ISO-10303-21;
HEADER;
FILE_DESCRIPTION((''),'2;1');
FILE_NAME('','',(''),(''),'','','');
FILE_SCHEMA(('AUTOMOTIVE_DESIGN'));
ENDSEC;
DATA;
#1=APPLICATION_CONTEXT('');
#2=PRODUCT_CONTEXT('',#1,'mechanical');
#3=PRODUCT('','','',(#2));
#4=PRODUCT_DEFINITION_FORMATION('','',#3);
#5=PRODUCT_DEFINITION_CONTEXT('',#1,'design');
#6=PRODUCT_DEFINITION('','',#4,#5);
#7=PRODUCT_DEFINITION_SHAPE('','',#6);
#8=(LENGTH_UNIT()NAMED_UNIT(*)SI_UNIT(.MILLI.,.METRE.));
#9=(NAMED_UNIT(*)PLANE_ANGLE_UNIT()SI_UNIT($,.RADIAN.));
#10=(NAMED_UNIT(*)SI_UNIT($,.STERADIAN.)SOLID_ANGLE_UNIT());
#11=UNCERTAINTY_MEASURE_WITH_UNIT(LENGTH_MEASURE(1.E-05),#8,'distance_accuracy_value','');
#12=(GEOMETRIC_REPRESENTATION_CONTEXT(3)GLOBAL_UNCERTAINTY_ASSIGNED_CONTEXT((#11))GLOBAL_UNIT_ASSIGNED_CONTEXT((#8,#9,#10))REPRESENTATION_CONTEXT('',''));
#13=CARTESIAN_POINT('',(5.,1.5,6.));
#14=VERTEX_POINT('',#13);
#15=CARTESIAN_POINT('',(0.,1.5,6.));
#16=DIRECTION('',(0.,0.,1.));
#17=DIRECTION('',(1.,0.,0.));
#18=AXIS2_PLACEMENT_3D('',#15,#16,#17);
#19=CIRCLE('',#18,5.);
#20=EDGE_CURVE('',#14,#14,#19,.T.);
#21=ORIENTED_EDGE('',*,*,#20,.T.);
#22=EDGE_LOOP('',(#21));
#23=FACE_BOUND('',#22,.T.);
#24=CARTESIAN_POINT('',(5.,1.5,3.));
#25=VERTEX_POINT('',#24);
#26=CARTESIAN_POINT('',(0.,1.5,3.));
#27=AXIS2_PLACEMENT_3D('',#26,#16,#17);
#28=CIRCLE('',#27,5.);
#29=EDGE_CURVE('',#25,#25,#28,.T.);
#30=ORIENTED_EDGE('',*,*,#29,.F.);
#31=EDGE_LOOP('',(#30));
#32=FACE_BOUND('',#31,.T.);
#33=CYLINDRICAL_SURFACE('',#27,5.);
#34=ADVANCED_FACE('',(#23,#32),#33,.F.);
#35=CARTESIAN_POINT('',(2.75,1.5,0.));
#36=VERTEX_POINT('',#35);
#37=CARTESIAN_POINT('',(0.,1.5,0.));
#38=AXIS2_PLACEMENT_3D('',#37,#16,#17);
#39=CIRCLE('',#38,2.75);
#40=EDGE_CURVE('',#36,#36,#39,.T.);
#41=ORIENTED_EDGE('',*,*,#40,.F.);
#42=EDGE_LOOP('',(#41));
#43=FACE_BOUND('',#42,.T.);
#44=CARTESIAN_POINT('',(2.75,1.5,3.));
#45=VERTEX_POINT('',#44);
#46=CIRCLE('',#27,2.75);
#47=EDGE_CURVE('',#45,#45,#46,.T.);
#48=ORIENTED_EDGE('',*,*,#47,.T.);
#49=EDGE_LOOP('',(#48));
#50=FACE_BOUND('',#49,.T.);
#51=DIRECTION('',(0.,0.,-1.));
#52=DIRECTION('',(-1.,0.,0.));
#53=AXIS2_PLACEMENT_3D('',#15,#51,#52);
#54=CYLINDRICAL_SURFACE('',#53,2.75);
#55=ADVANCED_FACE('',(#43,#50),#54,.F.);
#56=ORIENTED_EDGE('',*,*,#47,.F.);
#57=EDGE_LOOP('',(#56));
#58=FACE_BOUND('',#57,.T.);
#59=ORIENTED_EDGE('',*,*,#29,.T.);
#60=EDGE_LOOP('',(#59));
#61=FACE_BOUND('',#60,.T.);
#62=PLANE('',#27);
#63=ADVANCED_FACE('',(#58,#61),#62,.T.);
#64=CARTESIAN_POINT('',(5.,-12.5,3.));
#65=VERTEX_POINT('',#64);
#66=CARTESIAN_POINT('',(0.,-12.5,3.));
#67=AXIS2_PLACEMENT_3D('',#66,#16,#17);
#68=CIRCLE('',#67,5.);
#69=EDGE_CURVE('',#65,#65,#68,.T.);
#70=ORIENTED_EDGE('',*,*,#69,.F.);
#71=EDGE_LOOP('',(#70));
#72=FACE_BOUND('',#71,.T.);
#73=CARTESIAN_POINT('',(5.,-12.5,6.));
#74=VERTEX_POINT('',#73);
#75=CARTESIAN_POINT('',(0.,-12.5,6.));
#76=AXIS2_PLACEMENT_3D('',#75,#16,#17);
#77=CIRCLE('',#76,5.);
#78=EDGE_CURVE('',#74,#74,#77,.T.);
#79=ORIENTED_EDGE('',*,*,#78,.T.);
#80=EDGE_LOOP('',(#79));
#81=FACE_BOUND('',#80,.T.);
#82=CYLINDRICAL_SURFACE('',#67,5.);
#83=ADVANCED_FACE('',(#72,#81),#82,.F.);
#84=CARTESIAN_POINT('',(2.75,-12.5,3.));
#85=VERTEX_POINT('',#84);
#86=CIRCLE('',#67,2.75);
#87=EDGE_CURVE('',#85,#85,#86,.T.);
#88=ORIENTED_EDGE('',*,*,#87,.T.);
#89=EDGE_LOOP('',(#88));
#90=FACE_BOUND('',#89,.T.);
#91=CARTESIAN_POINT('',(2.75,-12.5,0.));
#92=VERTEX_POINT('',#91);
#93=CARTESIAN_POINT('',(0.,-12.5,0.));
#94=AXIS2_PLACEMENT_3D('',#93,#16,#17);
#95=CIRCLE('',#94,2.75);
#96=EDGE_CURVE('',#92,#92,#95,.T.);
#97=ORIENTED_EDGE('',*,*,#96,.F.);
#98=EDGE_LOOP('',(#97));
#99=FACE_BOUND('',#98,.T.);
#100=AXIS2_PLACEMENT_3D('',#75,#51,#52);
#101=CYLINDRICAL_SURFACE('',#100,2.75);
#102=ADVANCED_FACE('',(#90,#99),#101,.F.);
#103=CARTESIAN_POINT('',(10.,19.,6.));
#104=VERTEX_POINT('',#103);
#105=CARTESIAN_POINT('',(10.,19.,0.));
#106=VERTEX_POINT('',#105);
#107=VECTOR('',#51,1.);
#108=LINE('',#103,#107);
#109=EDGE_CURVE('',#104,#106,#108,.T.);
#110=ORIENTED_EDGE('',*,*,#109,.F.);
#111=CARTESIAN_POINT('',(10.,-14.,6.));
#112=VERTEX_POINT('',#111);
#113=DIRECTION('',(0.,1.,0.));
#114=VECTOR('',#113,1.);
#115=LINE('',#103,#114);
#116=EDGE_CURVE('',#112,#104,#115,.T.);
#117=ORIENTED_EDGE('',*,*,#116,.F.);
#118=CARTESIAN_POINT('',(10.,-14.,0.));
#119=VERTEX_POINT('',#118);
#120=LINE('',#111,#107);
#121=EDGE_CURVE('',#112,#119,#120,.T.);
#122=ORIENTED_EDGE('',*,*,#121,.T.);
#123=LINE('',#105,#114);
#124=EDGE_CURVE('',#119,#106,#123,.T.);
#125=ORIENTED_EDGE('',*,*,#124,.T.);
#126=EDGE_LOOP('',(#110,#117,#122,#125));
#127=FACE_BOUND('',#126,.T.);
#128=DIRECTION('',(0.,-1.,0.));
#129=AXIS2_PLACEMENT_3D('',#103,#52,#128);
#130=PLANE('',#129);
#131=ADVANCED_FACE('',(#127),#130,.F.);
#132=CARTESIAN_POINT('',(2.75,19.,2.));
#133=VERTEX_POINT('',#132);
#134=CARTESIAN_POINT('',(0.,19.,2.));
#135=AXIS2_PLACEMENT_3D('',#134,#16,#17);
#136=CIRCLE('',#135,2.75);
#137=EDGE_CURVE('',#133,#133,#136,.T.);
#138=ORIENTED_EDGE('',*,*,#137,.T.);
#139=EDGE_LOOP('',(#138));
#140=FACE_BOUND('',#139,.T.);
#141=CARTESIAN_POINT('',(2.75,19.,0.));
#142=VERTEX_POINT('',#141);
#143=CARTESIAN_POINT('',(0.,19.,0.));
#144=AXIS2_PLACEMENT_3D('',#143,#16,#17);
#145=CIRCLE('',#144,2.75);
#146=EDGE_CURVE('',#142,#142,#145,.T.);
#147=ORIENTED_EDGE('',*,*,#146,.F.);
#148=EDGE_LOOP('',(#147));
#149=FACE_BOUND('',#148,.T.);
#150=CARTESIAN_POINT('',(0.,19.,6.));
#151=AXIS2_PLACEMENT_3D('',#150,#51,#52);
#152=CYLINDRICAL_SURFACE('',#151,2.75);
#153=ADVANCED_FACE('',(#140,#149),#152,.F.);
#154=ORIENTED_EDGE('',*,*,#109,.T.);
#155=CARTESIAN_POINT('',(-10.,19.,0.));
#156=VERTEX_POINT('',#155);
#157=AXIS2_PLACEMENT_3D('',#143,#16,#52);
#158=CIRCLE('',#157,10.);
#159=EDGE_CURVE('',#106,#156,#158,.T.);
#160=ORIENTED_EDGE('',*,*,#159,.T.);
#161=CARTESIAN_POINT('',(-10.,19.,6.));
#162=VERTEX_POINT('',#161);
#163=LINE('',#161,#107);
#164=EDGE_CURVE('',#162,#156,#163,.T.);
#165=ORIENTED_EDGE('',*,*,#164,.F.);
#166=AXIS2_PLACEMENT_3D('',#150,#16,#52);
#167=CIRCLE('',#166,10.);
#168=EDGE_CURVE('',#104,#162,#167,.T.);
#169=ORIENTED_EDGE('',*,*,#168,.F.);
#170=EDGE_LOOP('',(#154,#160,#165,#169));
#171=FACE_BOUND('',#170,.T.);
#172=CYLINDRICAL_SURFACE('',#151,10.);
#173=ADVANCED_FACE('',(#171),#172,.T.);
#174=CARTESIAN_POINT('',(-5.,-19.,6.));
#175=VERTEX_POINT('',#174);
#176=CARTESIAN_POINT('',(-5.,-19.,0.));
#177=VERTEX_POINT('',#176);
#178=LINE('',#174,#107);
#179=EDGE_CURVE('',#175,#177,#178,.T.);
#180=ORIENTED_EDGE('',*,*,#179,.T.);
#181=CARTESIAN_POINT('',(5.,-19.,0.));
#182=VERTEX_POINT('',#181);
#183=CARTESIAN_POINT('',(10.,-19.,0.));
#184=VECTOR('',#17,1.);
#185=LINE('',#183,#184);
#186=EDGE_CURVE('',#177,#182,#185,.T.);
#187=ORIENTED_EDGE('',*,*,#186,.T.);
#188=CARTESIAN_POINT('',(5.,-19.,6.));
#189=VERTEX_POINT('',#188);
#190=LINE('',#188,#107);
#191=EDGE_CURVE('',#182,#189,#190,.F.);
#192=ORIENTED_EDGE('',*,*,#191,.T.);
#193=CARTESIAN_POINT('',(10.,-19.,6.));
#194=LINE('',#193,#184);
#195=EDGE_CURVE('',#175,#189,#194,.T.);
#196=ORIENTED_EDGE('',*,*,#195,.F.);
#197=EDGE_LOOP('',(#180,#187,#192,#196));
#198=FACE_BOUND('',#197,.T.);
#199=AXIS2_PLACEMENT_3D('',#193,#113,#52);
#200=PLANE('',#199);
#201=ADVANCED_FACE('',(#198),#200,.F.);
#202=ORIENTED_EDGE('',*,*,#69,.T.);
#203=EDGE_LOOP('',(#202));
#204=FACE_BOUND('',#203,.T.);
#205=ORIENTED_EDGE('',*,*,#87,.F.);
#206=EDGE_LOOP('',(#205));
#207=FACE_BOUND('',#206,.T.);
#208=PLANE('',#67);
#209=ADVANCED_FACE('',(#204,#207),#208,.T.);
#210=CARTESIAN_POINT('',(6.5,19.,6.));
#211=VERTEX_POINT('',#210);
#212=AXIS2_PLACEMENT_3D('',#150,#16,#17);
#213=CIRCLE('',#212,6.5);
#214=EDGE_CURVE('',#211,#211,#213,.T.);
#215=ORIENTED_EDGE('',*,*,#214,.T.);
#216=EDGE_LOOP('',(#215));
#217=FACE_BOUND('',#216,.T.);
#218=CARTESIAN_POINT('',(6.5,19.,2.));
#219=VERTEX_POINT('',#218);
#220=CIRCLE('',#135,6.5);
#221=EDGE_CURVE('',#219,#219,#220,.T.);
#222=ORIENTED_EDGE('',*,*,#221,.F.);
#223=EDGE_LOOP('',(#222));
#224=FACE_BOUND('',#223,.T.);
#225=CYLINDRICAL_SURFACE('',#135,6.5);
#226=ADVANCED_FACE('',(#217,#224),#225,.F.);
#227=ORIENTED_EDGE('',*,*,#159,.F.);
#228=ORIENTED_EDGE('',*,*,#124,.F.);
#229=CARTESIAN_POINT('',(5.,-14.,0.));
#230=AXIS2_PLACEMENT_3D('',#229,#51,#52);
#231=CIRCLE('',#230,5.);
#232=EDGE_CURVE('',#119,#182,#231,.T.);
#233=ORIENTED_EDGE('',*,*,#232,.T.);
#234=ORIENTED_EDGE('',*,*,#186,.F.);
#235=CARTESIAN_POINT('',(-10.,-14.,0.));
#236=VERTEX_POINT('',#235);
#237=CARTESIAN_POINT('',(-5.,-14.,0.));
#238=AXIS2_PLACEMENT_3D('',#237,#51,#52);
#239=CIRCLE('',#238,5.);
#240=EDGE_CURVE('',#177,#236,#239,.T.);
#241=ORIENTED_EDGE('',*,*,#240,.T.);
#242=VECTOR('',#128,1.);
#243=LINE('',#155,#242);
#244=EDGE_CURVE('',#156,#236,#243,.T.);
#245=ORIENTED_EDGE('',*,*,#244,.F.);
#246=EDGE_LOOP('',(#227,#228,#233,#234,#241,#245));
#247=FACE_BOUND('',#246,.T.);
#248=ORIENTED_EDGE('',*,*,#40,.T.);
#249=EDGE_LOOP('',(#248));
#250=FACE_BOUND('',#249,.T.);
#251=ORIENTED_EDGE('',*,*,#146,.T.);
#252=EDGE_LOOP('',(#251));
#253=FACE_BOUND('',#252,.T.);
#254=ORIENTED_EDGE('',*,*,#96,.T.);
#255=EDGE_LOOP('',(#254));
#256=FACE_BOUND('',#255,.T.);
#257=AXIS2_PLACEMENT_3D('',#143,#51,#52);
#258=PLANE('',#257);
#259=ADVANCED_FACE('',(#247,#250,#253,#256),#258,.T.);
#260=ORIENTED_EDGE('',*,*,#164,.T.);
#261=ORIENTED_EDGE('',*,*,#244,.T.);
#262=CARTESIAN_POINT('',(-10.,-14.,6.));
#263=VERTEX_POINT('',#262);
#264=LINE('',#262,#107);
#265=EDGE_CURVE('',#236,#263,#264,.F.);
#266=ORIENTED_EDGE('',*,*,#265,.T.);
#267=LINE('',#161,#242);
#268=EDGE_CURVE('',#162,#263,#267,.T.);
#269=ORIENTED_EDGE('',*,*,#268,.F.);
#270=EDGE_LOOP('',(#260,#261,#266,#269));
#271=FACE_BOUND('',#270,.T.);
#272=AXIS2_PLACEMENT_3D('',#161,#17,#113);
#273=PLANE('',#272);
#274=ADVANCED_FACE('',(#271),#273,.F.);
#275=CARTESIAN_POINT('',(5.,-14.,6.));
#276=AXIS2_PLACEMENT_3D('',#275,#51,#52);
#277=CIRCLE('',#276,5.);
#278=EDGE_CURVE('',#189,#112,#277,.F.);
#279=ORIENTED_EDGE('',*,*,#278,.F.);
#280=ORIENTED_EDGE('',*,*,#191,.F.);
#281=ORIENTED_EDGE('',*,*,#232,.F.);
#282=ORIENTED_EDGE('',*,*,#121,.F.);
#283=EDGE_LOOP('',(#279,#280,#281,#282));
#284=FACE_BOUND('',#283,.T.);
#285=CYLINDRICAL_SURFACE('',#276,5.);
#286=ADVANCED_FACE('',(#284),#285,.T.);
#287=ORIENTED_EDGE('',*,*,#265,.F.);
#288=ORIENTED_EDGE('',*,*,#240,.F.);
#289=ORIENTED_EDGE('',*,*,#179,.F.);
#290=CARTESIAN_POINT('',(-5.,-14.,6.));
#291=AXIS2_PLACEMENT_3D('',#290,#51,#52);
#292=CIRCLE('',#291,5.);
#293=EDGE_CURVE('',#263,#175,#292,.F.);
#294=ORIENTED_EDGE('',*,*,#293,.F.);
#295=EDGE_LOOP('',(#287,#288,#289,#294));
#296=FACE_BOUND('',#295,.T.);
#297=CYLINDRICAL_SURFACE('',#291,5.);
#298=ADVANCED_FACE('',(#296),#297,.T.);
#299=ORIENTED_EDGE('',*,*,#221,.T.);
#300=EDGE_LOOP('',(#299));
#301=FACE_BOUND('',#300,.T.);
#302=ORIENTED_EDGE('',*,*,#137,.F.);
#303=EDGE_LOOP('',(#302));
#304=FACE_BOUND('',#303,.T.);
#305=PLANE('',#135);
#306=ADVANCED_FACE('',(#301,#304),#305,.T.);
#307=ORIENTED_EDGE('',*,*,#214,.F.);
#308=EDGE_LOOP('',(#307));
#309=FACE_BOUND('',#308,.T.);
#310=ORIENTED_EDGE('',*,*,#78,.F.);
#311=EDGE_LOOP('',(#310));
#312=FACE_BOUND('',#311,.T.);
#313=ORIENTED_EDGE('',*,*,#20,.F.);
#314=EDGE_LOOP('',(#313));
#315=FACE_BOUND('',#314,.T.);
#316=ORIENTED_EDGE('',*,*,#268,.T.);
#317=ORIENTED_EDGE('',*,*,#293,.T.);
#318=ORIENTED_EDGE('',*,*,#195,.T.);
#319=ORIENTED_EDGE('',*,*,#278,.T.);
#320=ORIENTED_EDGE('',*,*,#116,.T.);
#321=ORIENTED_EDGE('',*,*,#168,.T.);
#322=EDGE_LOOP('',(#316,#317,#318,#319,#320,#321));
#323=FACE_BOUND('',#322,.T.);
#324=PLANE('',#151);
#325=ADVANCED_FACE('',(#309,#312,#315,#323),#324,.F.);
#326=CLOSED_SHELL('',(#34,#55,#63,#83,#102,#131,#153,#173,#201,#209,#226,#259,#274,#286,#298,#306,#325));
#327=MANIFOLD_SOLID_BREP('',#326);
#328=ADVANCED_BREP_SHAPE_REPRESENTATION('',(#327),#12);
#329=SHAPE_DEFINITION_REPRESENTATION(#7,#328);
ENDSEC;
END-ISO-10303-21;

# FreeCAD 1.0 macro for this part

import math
import FreeCAD as App
import Part
import Sketcher
Q = App.Units.Quantity


def edges_at(feature, points):
    """Names of the edges that pass closest to the given points."""
    edges = feature.Shape.Edges
    near = lambda p: min(range(len(edges)), key=lambda i: edges[i].distToShape(Part.Vertex(*p))[0])
    return sorted({f"Edge{near(p) + 1}" for p in points})

doc = App.newDocument("Part")
body = doc.addObject("PartDesign::Body", "Body")

# Sketch on XY plane
sketch1 = body.newObject("Sketcher::SketchObject", "Sketch")
sketch1.AttachmentSupport = (doc.getObject("XY_Plane"), [""])
sketch1.MapMode = "FlatFace"
sketch1.addGeometry([
    Part.LineSegment(App.Vector(10, -19, 0), App.Vector(10, 19, 0)),  # 0
    Part.ArcOfCircle(Part.Circle(App.Vector(0, 19, 0), App.Vector(0, 0, 1), 10), math.radians(0), math.radians(180)),  # 1
    Part.LineSegment(App.Vector(-10, 19, 0), App.Vector(-10, -19, 0)),  # 2
    Part.LineSegment(App.Vector(-10, -19, 0), App.Vector(10, -19, 0)),  # 3
    Part.Circle(App.Vector(0, -12.5, 0), App.Vector(0, 0, 1), 2.8),  # 4
    Part.Circle(App.Vector(0, 1.5, 0), App.Vector(0, 0, 1), 2.8),  # 5
    Part.Circle(App.Vector(0, 19, 0), App.Vector(0, 0, 1), 2.8),  # 6
], False)
sketch1.addConstraint([
    Sketcher.Constraint("Tangent", 0, 2, 1, 1),
    Sketcher.Constraint("Tangent", 1, 2, 2, 1),
    Sketcher.Constraint("Coincident", 2, 2, 3, 1),
    Sketcher.Constraint("Coincident", 3, 2, 0, 1),
    Sketcher.Constraint("Vertical", 0),
    Sketcher.Constraint("Vertical", 2),
    Sketcher.Constraint("Horizontal", 3),
    Sketcher.Constraint("Coincident", 6, 3, 1, 3),
    Sketcher.Constraint("Equal", 4, 5),
    Sketcher.Constraint("Equal", 5, 6),
    Sketcher.Constraint("Symmetric", 0, 2, 2, 2, -1, 1),
    Sketcher.Constraint("PointOnObject", 4, 3, -2),
    Sketcher.Constraint("PointOnObject", 5, 3, -2),
    Sketcher.Constraint("Radius", 1, Q("10 mm")),
    Sketcher.Constraint("Diameter", 4, Q("5.5 mm")),
    Sketcher.Constraint("DistanceY", 0, 1, 0, 2, Q("38 mm")),
    Sketcher.Constraint("DistanceY", 4, 3, 5, 3, Q("14 mm")),
    Sketcher.Constraint("DistanceY", 4, 3, -1, 1, Q("12.5 mm")),
])
pad1 = body.newObject("PartDesign::Pad", "Pad")
pad1.Profile = sketch1
pad1.Length = 6

# Sketch on XY plane
sketch2 = body.newObject("Sketcher::SketchObject", "Sketch001")
sketch2.AttachmentSupport = (doc.getObject("XY_Plane"), [""])
sketch2.MapMode = "FlatFace"
sketch2.AttachmentOffset = App.Placement(App.Vector(0, 0, 6), App.Rotation())
sketch2.addGeometry([
    Part.Circle(App.Vector(0, 2, 0), App.Vector(0, 0, 1), 5),
    Part.Circle(App.Vector(0, -12, 0), App.Vector(0, 0, 1), 5),
], False)
sketch2.addConstraint([
    Sketcher.Constraint("Equal", 0, 1),
    Sketcher.Constraint("PointOnObject", 0, 3, -2),
    Sketcher.Constraint("PointOnObject", 1, 3, -2),
    Sketcher.Constraint("Diameter", 0, Q("10 mm")),
    Sketcher.Constraint("DistanceY", 1, 3, 0, 3, Q("14 mm")),
    Sketcher.Constraint("DistanceY", -1, 1, 0, 3, Q("1.5 mm")),
])
pocket1 = body.newObject("PartDesign::Pocket", "Pocket")
pocket1.Profile = sketch2
pocket1.Length = 3
doc.recompute()

fillet = body.newObject("PartDesign::Fillet", "Fillet")
fillet.Base = (pocket1, edges_at(pocket1, [(10, -19, 3), (-10, -19, 3)]))
fillet.Radius = 5

# Sketch on XY plane
sketch3 = body.newObject("Sketcher::SketchObject", "Sketch002")
sketch3.AttachmentSupport = (doc.getObject("XY_Plane"), [""])
sketch3.MapMode = "FlatFace"
sketch3.AttachmentOffset = App.Placement(App.Vector(0, 0, 6), App.Rotation())
sketch3.addGeometry(Part.Circle(App.Vector(0, 19, 0), App.Vector(0, 0, 1), 6), False)
sketch3.addConstraint([
    Sketcher.Constraint("PointOnObject", 0, 3, -2),
    Sketcher.Constraint("Diameter", 0, Q("13 mm")),
    Sketcher.Constraint("DistanceY", -1, 1, 0, 3, Q("19 mm")),
])
pocket2 = body.newObject("PartDesign::Pocket", "Pocket001")
pocket2.Profile = sketch3
pocket2.Length = 4

doc.recompute()
